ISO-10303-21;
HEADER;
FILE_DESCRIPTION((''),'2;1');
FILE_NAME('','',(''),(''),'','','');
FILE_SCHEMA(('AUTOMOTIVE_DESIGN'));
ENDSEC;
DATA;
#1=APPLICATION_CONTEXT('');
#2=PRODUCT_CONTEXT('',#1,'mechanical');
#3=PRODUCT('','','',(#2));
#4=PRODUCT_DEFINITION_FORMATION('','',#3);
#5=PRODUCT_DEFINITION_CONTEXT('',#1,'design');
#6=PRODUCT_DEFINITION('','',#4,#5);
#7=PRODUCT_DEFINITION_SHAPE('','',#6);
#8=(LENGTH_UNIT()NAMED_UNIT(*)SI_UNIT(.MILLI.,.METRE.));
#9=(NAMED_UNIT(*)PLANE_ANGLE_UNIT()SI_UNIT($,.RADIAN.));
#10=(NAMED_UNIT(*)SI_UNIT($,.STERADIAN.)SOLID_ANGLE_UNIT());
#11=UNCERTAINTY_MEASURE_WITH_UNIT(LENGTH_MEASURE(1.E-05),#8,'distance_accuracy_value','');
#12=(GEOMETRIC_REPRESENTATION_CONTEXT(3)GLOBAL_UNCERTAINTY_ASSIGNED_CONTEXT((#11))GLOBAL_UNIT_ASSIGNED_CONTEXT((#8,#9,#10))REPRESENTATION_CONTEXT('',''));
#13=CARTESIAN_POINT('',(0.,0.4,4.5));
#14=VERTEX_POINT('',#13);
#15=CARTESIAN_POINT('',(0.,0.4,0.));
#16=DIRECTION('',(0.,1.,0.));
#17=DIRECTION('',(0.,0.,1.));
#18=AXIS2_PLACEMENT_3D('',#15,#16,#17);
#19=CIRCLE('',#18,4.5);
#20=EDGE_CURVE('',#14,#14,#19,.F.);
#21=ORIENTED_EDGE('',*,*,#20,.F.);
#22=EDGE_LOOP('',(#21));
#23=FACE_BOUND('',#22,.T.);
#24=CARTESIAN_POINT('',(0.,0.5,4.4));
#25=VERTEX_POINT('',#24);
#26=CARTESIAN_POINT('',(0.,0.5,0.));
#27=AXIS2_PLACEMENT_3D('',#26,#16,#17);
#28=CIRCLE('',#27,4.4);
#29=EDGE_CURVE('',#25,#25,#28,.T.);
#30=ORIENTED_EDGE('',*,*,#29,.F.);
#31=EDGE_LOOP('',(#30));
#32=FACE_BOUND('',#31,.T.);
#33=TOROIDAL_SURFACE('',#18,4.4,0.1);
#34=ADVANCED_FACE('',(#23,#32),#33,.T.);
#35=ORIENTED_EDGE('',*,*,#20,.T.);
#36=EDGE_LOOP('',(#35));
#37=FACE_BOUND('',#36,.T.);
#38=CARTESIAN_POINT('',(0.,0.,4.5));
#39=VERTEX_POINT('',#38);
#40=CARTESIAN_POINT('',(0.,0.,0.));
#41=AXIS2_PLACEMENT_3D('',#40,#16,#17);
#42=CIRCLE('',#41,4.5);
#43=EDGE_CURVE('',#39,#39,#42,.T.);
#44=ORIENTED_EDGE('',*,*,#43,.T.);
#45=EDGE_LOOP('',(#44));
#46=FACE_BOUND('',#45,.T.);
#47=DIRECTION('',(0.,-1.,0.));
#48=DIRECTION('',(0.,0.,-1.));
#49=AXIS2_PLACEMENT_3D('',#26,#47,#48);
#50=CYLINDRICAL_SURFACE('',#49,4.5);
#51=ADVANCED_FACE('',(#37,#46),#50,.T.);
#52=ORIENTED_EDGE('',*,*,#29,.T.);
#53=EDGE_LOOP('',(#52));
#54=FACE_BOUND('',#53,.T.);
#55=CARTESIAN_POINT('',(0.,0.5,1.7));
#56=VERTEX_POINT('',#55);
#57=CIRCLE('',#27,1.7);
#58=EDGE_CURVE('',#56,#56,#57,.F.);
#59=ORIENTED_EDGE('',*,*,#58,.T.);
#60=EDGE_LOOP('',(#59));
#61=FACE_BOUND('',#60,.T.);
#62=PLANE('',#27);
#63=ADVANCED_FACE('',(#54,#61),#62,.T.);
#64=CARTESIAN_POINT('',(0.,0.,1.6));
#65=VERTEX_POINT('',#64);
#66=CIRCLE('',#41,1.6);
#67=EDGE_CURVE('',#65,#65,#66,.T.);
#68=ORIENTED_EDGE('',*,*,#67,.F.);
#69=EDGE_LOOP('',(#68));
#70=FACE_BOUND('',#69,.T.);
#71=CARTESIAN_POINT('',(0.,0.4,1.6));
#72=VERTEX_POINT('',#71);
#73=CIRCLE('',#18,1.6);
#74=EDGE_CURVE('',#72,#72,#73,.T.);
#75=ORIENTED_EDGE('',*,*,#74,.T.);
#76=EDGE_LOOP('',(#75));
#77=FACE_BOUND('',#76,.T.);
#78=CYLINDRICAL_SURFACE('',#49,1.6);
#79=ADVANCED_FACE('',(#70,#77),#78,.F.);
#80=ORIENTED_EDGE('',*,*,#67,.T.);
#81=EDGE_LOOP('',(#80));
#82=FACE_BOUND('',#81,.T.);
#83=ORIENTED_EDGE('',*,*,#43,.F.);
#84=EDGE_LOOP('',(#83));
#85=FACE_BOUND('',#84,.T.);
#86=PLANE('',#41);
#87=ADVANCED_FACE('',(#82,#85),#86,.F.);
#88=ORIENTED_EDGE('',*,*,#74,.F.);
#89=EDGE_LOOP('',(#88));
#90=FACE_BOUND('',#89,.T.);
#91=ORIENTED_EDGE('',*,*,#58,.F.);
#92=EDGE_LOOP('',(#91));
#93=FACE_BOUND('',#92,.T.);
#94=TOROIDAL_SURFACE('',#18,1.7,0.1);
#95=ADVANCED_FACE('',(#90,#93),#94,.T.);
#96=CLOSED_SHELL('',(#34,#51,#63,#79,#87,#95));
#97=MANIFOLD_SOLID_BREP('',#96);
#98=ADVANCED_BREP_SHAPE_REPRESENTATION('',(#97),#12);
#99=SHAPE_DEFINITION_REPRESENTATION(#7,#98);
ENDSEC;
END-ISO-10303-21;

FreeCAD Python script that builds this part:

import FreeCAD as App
import Part
import Sketcher
from FreeCAD import Vector
Q = App.Units.Quantity


def edges_at(feature, points):
    """Names of the edges that pass closest to the given points."""
    edges = feature.Shape.Edges
    near = lambda p: min(range(len(edges)), key=lambda i: edges[i].distToShape(Part.Vertex(*p))[0])
    return sorted({f"Edge{near(p) + 1}" for p in points})

doc = App.newDocument("Part")
body = doc.addObject("PartDesign::Body", "Body")

# Sketch on XZ plane
sketch1 = doc.addObject("Sketcher::SketchObject", "Sketch")
body.addObject(sketch1)
sketch1.AttachmentSupport = (doc.XZ_Plane, [""])
sketch1.MapMode = "FlatFace"
sketch1.addGeometry(Part.Circle(Vector(0, 0, 0), Vector(0, 0, 1), 4.5), False)
sketch1.addGeometry(Part.Circle(Vector(0, 0, 0), Vector(0, 0, 1), 1.6), False)
sketch1.addConstraint(Sketcher.Constraint("Coincident", 0, 3, -1, 1))
sketch1.addConstraint(Sketcher.Constraint("Coincident", 1, 3, -1, 1))
sketch1.addConstraint(Sketcher.Constraint("Diameter", 0, Q("9 mm")))
sketch1.addConstraint(Sketcher.Constraint("Diameter", 1, Q("3.2 mm")))
pad1 = doc.addObject("PartDesign::Pad", "Pad")
body.addObject(pad1)
pad1.Profile = sketch1
pad1.Length = 0.5
pad1.Reversed = True
doc.recompute()

fillet = doc.addObject("PartDesign::Fillet", "Fillet")
body.addObject(fillet)
fillet.Base = (pad1, edges_at(pad1, [(0, 0.5, -4.5), (0, 0.5, -1.6)]))
fillet.Radius = 0.1

doc.recompute()
